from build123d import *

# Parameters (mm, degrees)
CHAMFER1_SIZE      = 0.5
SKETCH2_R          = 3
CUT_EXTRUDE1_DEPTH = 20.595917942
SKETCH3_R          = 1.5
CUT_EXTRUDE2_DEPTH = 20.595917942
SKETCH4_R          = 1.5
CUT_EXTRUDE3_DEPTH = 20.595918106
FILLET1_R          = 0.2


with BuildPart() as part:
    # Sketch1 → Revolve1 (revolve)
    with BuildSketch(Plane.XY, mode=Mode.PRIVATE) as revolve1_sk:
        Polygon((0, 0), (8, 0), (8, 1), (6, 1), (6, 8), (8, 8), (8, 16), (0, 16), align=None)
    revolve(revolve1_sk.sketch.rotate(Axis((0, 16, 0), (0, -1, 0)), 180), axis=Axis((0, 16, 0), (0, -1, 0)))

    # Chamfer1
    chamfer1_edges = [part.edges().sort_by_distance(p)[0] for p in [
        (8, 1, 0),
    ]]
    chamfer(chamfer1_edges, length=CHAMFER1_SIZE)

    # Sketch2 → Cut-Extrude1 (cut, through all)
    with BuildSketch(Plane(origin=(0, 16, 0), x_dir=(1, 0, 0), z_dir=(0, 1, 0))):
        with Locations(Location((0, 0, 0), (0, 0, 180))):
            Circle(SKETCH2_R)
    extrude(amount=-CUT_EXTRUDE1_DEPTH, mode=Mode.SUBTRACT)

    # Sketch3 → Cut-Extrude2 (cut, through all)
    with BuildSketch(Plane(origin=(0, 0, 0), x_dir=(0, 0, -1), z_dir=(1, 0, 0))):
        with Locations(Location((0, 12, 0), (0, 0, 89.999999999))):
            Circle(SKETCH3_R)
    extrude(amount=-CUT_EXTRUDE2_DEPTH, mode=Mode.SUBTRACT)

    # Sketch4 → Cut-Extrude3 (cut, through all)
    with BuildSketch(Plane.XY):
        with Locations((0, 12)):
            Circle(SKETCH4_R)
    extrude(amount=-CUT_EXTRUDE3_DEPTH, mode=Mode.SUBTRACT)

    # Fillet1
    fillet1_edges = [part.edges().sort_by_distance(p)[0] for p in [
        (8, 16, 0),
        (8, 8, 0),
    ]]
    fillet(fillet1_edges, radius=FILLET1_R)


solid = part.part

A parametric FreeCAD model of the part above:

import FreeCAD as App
import Part
import Sketcher

V = App.Vector


def edges_at(feature, points):
    """Names of the edges that pass closest to the given points."""
    edges = feature.Shape.Edges
    near = lambda p: min(range(len(edges)), key=lambda i: edges[i].distToShape(Part.Vertex(*p))[0])
    return sorted({f"Edge{near(p) + 1}" for p in points})


def add_polygon(sketch, points):
    """Adds a closed chain of lines whose ends are joined by coincident constraints."""
    first, n = sketch.GeometryCount, len(points)
    for a, b in zip(points, points[1:] + points[:1]):
        sketch.addGeometry(Part.LineSegment(App.Vector(*a, 0), App.Vector(*b, 0)), False)
    for i in range(n):
        sketch.addConstraint(Sketcher.Constraint("Coincident", first + i, 2, first + (i + 1) % n, 1))

doc = App.newDocument("Part")
body = doc.addObject("PartDesign::Body", "Body")

sketch1 = doc.addObject("Sketcher::SketchObject", "Sketch")
body.addObject(sketch1)
sketch1.AttachmentSupport = (doc.XY_Plane, [""])
sketch1.MapMode = "FlatFace"
add_polygon(sketch1, [(0, 0), (8, 0), (8, 1), (6, 1), (6, 8), (8, 8), (8, 16), (0, 16)])
sketch1.addConstraint(Sketcher.Constraint("Horizontal", 0))
sketch1.addConstraint(Sketcher.Constraint("Vertical", 1))
sketch1.addConstraint(Sketcher.Constraint("Horizontal", 2))
sketch1.addConstraint(Sketcher.Constraint("Vertical", 3))
sketch1.addConstraint(Sketcher.Constraint("Horizontal", 4))
sketch1.addConstraint(Sketcher.Constraint("Vertical", 5))
sketch1.addConstraint(Sketcher.Constraint("Horizontal", 6))
sketch1.addConstraint(Sketcher.Constraint("Vertical", 7))
sketch1.addConstraint(Sketcher.Constraint("Coincident", 7, 2, -1, 1))
sketch1.addConstraint(Sketcher.Constraint("Vertical", 1, 2, 4, 2))
sketch1.addConstraint(Sketcher.Constraint("Equal", 6, 5))
sketch1.addConstraint(Sketcher.Constraint("DistanceX", 0, 1, 0, 2, 8.0))
sketch1.addConstraint(Sketcher.Constraint("DistanceX", 2, 2, 2, 1, 2.0))
sketch1.addConstraint(Sketcher.Constraint("DistanceY", 1, 1, 1, 2, 1.0))
sketch1.addConstraint(Sketcher.Constraint("DistanceY", 3, 1, 3, 2, 7.0))
revolution = doc.addObject("PartDesign::Revolution", "Revolution")
body.addObject(revolution)
revolution.Profile = sketch1
revolution.ReferenceAxis = (sketch1, ["V_Axis"])
revolution.Angle = 360
doc.recompute()

chamfer = doc.addObject("PartDesign::Chamfer", "Chamfer")
body.addObject(chamfer)
chamfer.Base = (revolution, edges_at(revolution, [(8, 1, 0)]))
chamfer.Size = 0.5

sketch2 = doc.addObject("Sketcher::SketchObject", "Sketch001")
body.addObject(sketch2)
sketch2.AttachmentSupport = (doc.XZ_Plane, [""])
sketch2.MapMode = "FlatFace"
sketch2.AttachmentOffset = App.Placement(V(0, 0, -16), App.Rotation())
sketch2.addGeometry(Part.Circle(V(0, 0, 0), V(0, 0, 1), 3), False)
sketch2.addConstraint(Sketcher.Constraint("Coincident", 0, 3, -1, 1))
sketch2.addConstraint(Sketcher.Constraint("Diameter", 0, 6.0))
pocket1 = doc.addObject("PartDesign::Pocket", "Pocket")
body.addObject(pocket1)
pocket1.Profile = sketch2
pocket1.Type = "ThroughAll"
pocket1.Reversed = True

sketch3 = doc.addObject("Sketcher::SketchObject", "Sketch002")
body.addObject(sketch3)
sketch3.AttachmentSupport = (doc.YZ_Plane, [""])
sketch3.MapMode = "FlatFace"
sketch3.addGeometry(Part.Circle(V(12, 0, 0), V(0, 0, 1), 1.5), False)
sketch3.addConstraint(Sketcher.Constraint("PointOnObject", 0, 3, -1))
sketch3.addConstraint(Sketcher.Constraint("Diameter", 0, 3.0))
sketch3.addConstraint(Sketcher.Constraint("DistanceX", -1, 1, 0, 3, 12.0))
pocket2 = doc.addObject("PartDesign::Pocket", "Pocket001")
body.addObject(pocket2)
pocket2.Profile = sketch3
pocket2.Type = "ThroughAll"

sketch4 = doc.addObject("Sketcher::SketchObject", "Sketch003")
body.addObject(sketch4)
sketch4.AttachmentSupport = (doc.XY_Plane, [""])
sketch4.MapMode = "FlatFace"
sketch4.addGeometry(Part.Circle(V(0, 12, 0), V(0, 0, 1), 1.5), False)
sketch4.addConstraint(Sketcher.Constraint("PointOnObject", 0, 3, -2))
sketch4.addConstraint(Sketcher.Constraint("Diameter", 0, 3.0))
sketch4.addConstraint(Sketcher.Constraint("DistanceY", -1, 1, 0, 3, 12.0))
pocket3 = doc.addObject("PartDesign::Pocket", "Pocket002")
body.addObject(pocket3)
pocket3.Profile = sketch4
pocket3.Type = "ThroughAll"
doc.recompute()

fillet = doc.addObject("PartDesign::Fillet", "Fillet")
body.addObject(fillet)
fillet.Base = (pocket3, edges_at(pocket3, [(8, 16, 0), (8, 8, 0)]))
fillet.Radius = 0.2

doc.recompute()
